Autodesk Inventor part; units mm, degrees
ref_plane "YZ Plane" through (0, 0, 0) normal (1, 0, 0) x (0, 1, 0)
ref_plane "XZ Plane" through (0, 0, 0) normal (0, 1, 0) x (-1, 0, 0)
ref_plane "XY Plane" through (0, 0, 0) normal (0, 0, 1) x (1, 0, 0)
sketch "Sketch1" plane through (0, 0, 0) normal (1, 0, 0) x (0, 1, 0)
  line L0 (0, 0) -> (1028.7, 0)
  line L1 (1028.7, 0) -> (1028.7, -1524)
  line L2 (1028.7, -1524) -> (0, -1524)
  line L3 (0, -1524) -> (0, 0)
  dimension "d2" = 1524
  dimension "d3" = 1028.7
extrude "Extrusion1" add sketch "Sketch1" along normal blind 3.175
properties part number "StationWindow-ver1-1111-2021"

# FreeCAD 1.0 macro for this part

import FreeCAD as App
import Part
import Sketcher

V = App.Vector
Q = App.Units.Quantity


def add_polygon(sketch, points):
    """Adds a closed chain of lines whose ends are joined by coincident constraints."""
    first, n = sketch.GeometryCount, len(points)
    for a, b in zip(points, points[1:] + points[:1]):
        sketch.addGeometry(Part.LineSegment(App.Vector(*a, 0), App.Vector(*b, 0)), False)
    for i in range(n):
        sketch.addConstraint(Sketcher.Constraint("Coincident", first + i, 2, first + (i + 1) % n, 1))

doc = App.newDocument("Part")
params = doc.addObject("Spreadsheet::Sheet", "Params")
for row, (alias, value) in enumerate([
    ("sketch1_height", "60 in"),
    ("sketch1_width", "40.5 in"),
    ("pad1_length", "0.125 in"),
], start=1):
    params.set(f"A{row}", alias)
    params.set(f"B{row}", "=" + value)
    params.setAlias(f"B{row}", alias)

body = doc.addObject("PartDesign::Body", "Body")

# Sketch on YZ plane
sketch1 = body.newObject("Sketcher::SketchObject", "Sketch")
sketch1.AttachmentSupport = (doc.getObject("YZ_Plane"), [""])
sketch1.MapMode = "FlatFace"
add_polygon(sketch1, [(1029, 0), (0, 0), (0, -1524), (1029, -1524)])  # lines 0-3
sketch1.addConstraint([
    Sketcher.Constraint("Horizontal", 0),
    Sketcher.Constraint("Vertical", 1),
    Sketcher.Constraint("Horizontal", 2),
    Sketcher.Constraint("Vertical", 3),
    Sketcher.Constraint("Coincident", 0, 2, -1, 1),
    Sketcher.Constraint("DistanceY", 1, 2, 1, 1, Q("60 in")),
    Sketcher.Constraint("DistanceX", 0, 2, 0, 1, Q("40.5 in")),
])
sketch1.setExpression("Constraints[9]", "Params.sketch1_height")
sketch1.setExpression("Constraints[10]", "Params.sketch1_width")
pad1 = body.newObject("PartDesign::Pad", "Pad")
pad1.Profile = sketch1
pad1.setExpression("Length", "Params.pad1_length")

doc.recompute()
